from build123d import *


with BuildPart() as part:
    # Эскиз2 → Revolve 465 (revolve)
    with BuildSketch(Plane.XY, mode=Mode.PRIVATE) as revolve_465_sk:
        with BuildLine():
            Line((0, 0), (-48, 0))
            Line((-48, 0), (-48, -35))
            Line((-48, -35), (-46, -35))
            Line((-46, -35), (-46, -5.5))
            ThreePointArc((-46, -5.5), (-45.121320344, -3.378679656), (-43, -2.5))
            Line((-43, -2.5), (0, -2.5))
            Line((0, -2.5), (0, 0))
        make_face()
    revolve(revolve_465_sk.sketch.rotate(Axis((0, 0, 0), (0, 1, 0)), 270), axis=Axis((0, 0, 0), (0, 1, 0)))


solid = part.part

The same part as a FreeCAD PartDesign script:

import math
import FreeCAD as App
import Part
import Sketcher

doc = App.newDocument("Part")
params = doc.addObject("Spreadsheet::Sheet", "Params")
for row, (alias, value) in enumerate([
    ("sketch1_radius", "3 mm"),
    ("sketch1_width", "48 mm"),
    ("sketch1_width2", "2 mm"),
    ("sketch1_height", "35 mm"),
    ("sketch1_height2", "29.5 mm"),
    ("revolution_angle", "360 deg"),
], start=1):
    params.set(f"A{row}", alias)
    params.set(f"B{row}", "=" + value)
    params.setAlias(f"B{row}", alias)

body = doc.addObject("PartDesign::Body", "Body")

# Sketch on XY plane
sketch1 = body.newObject("Sketcher::SketchObject", "Sketch")
sketch1.AttachmentSupport = (doc.getObject("XY_Plane"), [""])
sketch1.MapMode = "FlatFace"
sketch1.addGeometry([
    Part.LineSegment(App.Vector(0, 0, 0), App.Vector(-48, 0, 0)),  # 0
    Part.LineSegment(App.Vector(-48, 0, 0), App.Vector(-48, -35, 0)),  # 1
    Part.LineSegment(App.Vector(-48, -35, 0), App.Vector(-46, -35, 0)),  # 2
    Part.LineSegment(App.Vector(-46, -35, 0), App.Vector(-46, -5.5, 0)),  # 3
    Part.ArcOfCircle(Part.Circle(App.Vector(-43, -5.5, 0), App.Vector(0, 0, 1), 3), math.radians(90), math.radians(180)),  # 4
    Part.LineSegment(App.Vector(-43, -2.5, 0), App.Vector(0, -2.5, 0)),  # 5
    Part.LineSegment(App.Vector(0, -2.5, 0), App.Vector(0, 0, 0)),  # 6
], False)
sketch1.addConstraint([
    Sketcher.Constraint("Coincident", 0, 2, 1, 1),
    Sketcher.Constraint("Coincident", 1, 2, 2, 1),
    Sketcher.Constraint("Coincident", 2, 2, 3, 1),
    Sketcher.Constraint("Tangent", 3, 2, 4, 2),
    Sketcher.Constraint("Tangent", 4, 1, 5, 1),
    Sketcher.Constraint("Coincident", 5, 2, 6, 1),
    Sketcher.Constraint("Coincident", 6, 2, 0, 1),
    Sketcher.Constraint("Horizontal", 0),
    Sketcher.Constraint("Vertical", 1),
    Sketcher.Constraint("Horizontal", 2),
    Sketcher.Constraint("Vertical", 3),
    Sketcher.Constraint("Horizontal", 5),
    Sketcher.Constraint("Vertical", 6),
    Sketcher.Constraint("Coincident", 6, 2, -1, 1),
    Sketcher.Constraint("Radius", 4, 3.0),
    Sketcher.Constraint("DistanceX", 0, 2, 0, 1, 48.0),
    Sketcher.Constraint("DistanceX", 2, 1, 2, 2, 2.0),
    Sketcher.Constraint("DistanceY", 1, 2, 1, 1, 35.0),
    Sketcher.Constraint("DistanceY", 3, 1, 3, 2, 29.5),
])
sketch1.setExpression("Constraints[14]", "Params.sketch1_radius")
sketch1.setExpression("Constraints[15]", "Params.sketch1_width")
sketch1.setExpression("Constraints[16]", "Params.sketch1_width2")
sketch1.setExpression("Constraints[17]", "Params.sketch1_height")
sketch1.setExpression("Constraints[18]", "Params.sketch1_height2")
revolution = body.newObject("PartDesign::Revolution", "Revolution")
revolution.Profile = sketch1
revolution.ReferenceAxis = (sketch1, ["V_Axis"])
revolution.setExpression("Angle", "Params.revolution_angle")

doc.recompute()
